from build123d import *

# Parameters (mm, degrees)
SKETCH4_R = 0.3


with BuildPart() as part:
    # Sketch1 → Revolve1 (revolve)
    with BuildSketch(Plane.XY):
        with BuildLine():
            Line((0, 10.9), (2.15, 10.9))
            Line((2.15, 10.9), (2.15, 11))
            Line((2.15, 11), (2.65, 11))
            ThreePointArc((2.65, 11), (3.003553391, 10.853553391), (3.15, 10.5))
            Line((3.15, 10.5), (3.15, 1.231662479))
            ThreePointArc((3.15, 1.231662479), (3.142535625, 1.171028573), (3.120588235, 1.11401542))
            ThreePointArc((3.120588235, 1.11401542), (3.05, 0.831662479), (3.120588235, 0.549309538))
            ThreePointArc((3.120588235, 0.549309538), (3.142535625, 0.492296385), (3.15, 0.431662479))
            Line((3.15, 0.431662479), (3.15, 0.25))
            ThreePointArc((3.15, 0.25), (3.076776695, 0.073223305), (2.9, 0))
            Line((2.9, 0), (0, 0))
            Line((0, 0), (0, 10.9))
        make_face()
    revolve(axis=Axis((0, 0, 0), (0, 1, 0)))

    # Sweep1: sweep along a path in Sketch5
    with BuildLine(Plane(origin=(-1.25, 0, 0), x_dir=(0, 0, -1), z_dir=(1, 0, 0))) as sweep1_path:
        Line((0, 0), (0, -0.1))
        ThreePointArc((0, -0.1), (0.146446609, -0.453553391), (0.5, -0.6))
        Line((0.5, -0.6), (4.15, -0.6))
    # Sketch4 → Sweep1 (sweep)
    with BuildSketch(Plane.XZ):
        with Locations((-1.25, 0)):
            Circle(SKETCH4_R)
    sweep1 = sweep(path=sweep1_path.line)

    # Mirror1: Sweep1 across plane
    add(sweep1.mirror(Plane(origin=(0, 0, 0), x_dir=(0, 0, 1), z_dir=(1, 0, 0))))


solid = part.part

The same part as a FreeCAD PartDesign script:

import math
import FreeCAD as App
import Part
import Sketcher

V = App.Vector

doc = App.newDocument("Part")
body = doc.addObject("PartDesign::Body", "Body")

sketch1 = doc.addObject("Sketcher::SketchObject", "Sketch")
body.addObject(sketch1)
sketch1.AttachmentSupport = (doc.XY_Plane, [""])
sketch1.MapMode = "FlatFace"
sketch1.addGeometry([
    Part.LineSegment(V(2.15, 10.9, 0), V(0, 10.9, 0)),
    Part.LineSegment(V(0, 10.9, 0), V(0, 0, 0)),
    Part.LineSegment(V(0, 0, 0), V(2.9, 0, 0)),
    Part.ArcOfCircle(Part.Circle(V(2.9, 0.25, 0), V(0, 0, 1), 0.25), math.radians(-90), math.radians(0)),
    Part.LineSegment(V(3.15, 0.25, 0), V(3.15, 0.43, 0)),
    Part.ArcOfCircle(Part.Circle(V(2.9, 0.43, 0), V(0, 0, 1), 0.25), math.radians(0), math.radians(28)),
    Part.ArcOfCircle(Part.Circle(V(3.65, 0.83, 0), V(0, 0, 1), 0.6), math.radians(152), math.radians(208)),
    Part.ArcOfCircle(Part.Circle(V(2.9, 1.23, 0), V(0, 0, 1), 0.25), math.radians(-28), math.radians(0)),
    Part.LineSegment(V(3.15, 1.23, 0), V(3.15, 10.5, 0)),
    Part.ArcOfCircle(Part.Circle(V(2.65, 10.5, 0), V(0, 0, 1), 0.5), math.radians(0), math.radians(90)),
    Part.LineSegment(V(2.65, 11, 0), V(2.15, 11, 0)),
    Part.LineSegment(V(2.15, 11, 0), V(2.15, 10.9, 0)),
], False)
sketch1.addConstraint([
    Sketcher.Constraint("Coincident", 0, 2, 1, 1),
    Sketcher.Constraint("Coincident", 1, 2, 2, 1),
    Sketcher.Constraint("Tangent", 2, 2, 3, 1),
    Sketcher.Constraint("Tangent", 3, 2, 4, 1),
    Sketcher.Constraint("Tangent", 4, 2, 5, 1),
    Sketcher.Constraint("Tangent", 5, 2, 6, 2),
    Sketcher.Constraint("Tangent", 6, 1, 7, 1),
    Sketcher.Constraint("Tangent", 7, 2, 8, 1),
    Sketcher.Constraint("Tangent", 8, 2, 9, 1),
    Sketcher.Constraint("Tangent", 9, 2, 10, 1),
    Sketcher.Constraint("Coincident", 10, 2, 11, 1),
    Sketcher.Constraint("Coincident", 11, 2, 0, 1),
    Sketcher.Constraint("Horizontal", 0),
    Sketcher.Constraint("Vertical", 1),
    Sketcher.Constraint("Horizontal", 2),
    Sketcher.Constraint("Vertical", 4),
    Sketcher.Constraint("Vertical", 8),
    Sketcher.Constraint("Horizontal", 10),
    Sketcher.Constraint("Vertical", 11),
    Sketcher.Constraint("Coincident", 1, 2, -1, 1),
    Sketcher.Constraint("Equal", 3, 5),
    Sketcher.Constraint("Equal", 5, 7),
    Sketcher.Constraint("Vertical", 5, 3, 7, 3),
    Sketcher.Constraint("Radius", 6, 0.6),
    Sketcher.Constraint("Radius", 9, 0.5),
    Sketcher.Constraint("Radius", 3, 0.25),
    Sketcher.Constraint("DistanceX", 2, 1, 2, 2, 2.9),
    Sketcher.Constraint("DistanceX", 10, 2, 10, 1, 0.5),
    Sketcher.Constraint("DistanceY", 1, 2, 1, 1, 10.9),
    Sketcher.Constraint("DistanceY", 11, 2, 11, 1, 0.1),
    Sketcher.Constraint("DistanceX", 9, 3, 6, 3, 1.0),
    Sketcher.Constraint("DistanceY", 4, 1, 4, 2, 0.181662),
])
revolution = doc.addObject("PartDesign::Revolution", "Revolution")
body.addObject(revolution)
revolution.Profile = sketch1
revolution.ReferenceAxis = (sketch1, ["V_Axis"])
revolution.Angle = 360

sketch2 = doc.addObject("Sketcher::SketchObject", "Sketch001")
body.addObject(sketch2)
sketch2.AttachmentSupport = (doc.XZ_Plane, [""])
sketch2.MapMode = "FlatFace"
sketch2.addGeometry(Part.Circle(V(-1.25, 0, 0), V(0, 0, 1), 0.3), False)
sketch2.addConstraint([
    Sketcher.Constraint("PointOnObject", 0, 3, -1),
    Sketcher.Constraint("Diameter", 0, 0.6),
    Sketcher.Constraint("DistanceX", 0, 3, -1, 1, 1.25),
])

sketch3 = doc.addObject("Sketcher::SketchObject", "Sketch002")
body.addObject(sketch3)
sketch3.AttachmentSupport = (doc.YZ_Plane, [""])
sketch3.MapMode = "FlatFace"
sketch3.AttachmentOffset = App.Placement(V(0, 0, -1.25), App.Rotation())
sketch3.addGeometry([
    Part.LineSegment(V(0, 0, 0), V(-0.1, 0, 0)),
    Part.ArcOfCircle(Part.Circle(V(-0.1, -0.5, 0), V(0, 0, 1), 0.5), math.radians(90), math.radians(180)),
    Part.LineSegment(V(-0.6, -0.5, 0), V(-0.6, -4.15, 0)),
], False)
sketch3.addConstraint([
    Sketcher.Constraint("Tangent", 0, 2, 1, 1),
    Sketcher.Constraint("Tangent", 1, 2, 2, 1),
    Sketcher.Constraint("Horizontal", 0),
    Sketcher.Constraint("Vertical", 2),
    Sketcher.Constraint("Coincident", 0, 1, -1, 1),
    Sketcher.Constraint("Radius", 1, 0.5),
    Sketcher.Constraint("DistanceX", 0, 2, 0, 1, 0.1),
    Sketcher.Constraint("DistanceY", 2, 2, 2, 1, 3.65),
])
doc.recompute()

additivepipe = doc.addObject("PartDesign::AdditivePipe", "AdditivePipe")
body.addObject(additivepipe)
additivepipe.Profile = sketch2
additivepipe.Spine = (sketch3, ["Edge1", "Edge2", "Edge3"])
doc.recompute()

mirrored = doc.addObject("PartDesign::Mirrored", "Mirrored")
body.addObject(mirrored)
mirrored.Originals = [additivepipe]
mirrored.MirrorPlane = (doc.YZ_Plane, [""])
body.Tip = mirrored

doc.recompute()
